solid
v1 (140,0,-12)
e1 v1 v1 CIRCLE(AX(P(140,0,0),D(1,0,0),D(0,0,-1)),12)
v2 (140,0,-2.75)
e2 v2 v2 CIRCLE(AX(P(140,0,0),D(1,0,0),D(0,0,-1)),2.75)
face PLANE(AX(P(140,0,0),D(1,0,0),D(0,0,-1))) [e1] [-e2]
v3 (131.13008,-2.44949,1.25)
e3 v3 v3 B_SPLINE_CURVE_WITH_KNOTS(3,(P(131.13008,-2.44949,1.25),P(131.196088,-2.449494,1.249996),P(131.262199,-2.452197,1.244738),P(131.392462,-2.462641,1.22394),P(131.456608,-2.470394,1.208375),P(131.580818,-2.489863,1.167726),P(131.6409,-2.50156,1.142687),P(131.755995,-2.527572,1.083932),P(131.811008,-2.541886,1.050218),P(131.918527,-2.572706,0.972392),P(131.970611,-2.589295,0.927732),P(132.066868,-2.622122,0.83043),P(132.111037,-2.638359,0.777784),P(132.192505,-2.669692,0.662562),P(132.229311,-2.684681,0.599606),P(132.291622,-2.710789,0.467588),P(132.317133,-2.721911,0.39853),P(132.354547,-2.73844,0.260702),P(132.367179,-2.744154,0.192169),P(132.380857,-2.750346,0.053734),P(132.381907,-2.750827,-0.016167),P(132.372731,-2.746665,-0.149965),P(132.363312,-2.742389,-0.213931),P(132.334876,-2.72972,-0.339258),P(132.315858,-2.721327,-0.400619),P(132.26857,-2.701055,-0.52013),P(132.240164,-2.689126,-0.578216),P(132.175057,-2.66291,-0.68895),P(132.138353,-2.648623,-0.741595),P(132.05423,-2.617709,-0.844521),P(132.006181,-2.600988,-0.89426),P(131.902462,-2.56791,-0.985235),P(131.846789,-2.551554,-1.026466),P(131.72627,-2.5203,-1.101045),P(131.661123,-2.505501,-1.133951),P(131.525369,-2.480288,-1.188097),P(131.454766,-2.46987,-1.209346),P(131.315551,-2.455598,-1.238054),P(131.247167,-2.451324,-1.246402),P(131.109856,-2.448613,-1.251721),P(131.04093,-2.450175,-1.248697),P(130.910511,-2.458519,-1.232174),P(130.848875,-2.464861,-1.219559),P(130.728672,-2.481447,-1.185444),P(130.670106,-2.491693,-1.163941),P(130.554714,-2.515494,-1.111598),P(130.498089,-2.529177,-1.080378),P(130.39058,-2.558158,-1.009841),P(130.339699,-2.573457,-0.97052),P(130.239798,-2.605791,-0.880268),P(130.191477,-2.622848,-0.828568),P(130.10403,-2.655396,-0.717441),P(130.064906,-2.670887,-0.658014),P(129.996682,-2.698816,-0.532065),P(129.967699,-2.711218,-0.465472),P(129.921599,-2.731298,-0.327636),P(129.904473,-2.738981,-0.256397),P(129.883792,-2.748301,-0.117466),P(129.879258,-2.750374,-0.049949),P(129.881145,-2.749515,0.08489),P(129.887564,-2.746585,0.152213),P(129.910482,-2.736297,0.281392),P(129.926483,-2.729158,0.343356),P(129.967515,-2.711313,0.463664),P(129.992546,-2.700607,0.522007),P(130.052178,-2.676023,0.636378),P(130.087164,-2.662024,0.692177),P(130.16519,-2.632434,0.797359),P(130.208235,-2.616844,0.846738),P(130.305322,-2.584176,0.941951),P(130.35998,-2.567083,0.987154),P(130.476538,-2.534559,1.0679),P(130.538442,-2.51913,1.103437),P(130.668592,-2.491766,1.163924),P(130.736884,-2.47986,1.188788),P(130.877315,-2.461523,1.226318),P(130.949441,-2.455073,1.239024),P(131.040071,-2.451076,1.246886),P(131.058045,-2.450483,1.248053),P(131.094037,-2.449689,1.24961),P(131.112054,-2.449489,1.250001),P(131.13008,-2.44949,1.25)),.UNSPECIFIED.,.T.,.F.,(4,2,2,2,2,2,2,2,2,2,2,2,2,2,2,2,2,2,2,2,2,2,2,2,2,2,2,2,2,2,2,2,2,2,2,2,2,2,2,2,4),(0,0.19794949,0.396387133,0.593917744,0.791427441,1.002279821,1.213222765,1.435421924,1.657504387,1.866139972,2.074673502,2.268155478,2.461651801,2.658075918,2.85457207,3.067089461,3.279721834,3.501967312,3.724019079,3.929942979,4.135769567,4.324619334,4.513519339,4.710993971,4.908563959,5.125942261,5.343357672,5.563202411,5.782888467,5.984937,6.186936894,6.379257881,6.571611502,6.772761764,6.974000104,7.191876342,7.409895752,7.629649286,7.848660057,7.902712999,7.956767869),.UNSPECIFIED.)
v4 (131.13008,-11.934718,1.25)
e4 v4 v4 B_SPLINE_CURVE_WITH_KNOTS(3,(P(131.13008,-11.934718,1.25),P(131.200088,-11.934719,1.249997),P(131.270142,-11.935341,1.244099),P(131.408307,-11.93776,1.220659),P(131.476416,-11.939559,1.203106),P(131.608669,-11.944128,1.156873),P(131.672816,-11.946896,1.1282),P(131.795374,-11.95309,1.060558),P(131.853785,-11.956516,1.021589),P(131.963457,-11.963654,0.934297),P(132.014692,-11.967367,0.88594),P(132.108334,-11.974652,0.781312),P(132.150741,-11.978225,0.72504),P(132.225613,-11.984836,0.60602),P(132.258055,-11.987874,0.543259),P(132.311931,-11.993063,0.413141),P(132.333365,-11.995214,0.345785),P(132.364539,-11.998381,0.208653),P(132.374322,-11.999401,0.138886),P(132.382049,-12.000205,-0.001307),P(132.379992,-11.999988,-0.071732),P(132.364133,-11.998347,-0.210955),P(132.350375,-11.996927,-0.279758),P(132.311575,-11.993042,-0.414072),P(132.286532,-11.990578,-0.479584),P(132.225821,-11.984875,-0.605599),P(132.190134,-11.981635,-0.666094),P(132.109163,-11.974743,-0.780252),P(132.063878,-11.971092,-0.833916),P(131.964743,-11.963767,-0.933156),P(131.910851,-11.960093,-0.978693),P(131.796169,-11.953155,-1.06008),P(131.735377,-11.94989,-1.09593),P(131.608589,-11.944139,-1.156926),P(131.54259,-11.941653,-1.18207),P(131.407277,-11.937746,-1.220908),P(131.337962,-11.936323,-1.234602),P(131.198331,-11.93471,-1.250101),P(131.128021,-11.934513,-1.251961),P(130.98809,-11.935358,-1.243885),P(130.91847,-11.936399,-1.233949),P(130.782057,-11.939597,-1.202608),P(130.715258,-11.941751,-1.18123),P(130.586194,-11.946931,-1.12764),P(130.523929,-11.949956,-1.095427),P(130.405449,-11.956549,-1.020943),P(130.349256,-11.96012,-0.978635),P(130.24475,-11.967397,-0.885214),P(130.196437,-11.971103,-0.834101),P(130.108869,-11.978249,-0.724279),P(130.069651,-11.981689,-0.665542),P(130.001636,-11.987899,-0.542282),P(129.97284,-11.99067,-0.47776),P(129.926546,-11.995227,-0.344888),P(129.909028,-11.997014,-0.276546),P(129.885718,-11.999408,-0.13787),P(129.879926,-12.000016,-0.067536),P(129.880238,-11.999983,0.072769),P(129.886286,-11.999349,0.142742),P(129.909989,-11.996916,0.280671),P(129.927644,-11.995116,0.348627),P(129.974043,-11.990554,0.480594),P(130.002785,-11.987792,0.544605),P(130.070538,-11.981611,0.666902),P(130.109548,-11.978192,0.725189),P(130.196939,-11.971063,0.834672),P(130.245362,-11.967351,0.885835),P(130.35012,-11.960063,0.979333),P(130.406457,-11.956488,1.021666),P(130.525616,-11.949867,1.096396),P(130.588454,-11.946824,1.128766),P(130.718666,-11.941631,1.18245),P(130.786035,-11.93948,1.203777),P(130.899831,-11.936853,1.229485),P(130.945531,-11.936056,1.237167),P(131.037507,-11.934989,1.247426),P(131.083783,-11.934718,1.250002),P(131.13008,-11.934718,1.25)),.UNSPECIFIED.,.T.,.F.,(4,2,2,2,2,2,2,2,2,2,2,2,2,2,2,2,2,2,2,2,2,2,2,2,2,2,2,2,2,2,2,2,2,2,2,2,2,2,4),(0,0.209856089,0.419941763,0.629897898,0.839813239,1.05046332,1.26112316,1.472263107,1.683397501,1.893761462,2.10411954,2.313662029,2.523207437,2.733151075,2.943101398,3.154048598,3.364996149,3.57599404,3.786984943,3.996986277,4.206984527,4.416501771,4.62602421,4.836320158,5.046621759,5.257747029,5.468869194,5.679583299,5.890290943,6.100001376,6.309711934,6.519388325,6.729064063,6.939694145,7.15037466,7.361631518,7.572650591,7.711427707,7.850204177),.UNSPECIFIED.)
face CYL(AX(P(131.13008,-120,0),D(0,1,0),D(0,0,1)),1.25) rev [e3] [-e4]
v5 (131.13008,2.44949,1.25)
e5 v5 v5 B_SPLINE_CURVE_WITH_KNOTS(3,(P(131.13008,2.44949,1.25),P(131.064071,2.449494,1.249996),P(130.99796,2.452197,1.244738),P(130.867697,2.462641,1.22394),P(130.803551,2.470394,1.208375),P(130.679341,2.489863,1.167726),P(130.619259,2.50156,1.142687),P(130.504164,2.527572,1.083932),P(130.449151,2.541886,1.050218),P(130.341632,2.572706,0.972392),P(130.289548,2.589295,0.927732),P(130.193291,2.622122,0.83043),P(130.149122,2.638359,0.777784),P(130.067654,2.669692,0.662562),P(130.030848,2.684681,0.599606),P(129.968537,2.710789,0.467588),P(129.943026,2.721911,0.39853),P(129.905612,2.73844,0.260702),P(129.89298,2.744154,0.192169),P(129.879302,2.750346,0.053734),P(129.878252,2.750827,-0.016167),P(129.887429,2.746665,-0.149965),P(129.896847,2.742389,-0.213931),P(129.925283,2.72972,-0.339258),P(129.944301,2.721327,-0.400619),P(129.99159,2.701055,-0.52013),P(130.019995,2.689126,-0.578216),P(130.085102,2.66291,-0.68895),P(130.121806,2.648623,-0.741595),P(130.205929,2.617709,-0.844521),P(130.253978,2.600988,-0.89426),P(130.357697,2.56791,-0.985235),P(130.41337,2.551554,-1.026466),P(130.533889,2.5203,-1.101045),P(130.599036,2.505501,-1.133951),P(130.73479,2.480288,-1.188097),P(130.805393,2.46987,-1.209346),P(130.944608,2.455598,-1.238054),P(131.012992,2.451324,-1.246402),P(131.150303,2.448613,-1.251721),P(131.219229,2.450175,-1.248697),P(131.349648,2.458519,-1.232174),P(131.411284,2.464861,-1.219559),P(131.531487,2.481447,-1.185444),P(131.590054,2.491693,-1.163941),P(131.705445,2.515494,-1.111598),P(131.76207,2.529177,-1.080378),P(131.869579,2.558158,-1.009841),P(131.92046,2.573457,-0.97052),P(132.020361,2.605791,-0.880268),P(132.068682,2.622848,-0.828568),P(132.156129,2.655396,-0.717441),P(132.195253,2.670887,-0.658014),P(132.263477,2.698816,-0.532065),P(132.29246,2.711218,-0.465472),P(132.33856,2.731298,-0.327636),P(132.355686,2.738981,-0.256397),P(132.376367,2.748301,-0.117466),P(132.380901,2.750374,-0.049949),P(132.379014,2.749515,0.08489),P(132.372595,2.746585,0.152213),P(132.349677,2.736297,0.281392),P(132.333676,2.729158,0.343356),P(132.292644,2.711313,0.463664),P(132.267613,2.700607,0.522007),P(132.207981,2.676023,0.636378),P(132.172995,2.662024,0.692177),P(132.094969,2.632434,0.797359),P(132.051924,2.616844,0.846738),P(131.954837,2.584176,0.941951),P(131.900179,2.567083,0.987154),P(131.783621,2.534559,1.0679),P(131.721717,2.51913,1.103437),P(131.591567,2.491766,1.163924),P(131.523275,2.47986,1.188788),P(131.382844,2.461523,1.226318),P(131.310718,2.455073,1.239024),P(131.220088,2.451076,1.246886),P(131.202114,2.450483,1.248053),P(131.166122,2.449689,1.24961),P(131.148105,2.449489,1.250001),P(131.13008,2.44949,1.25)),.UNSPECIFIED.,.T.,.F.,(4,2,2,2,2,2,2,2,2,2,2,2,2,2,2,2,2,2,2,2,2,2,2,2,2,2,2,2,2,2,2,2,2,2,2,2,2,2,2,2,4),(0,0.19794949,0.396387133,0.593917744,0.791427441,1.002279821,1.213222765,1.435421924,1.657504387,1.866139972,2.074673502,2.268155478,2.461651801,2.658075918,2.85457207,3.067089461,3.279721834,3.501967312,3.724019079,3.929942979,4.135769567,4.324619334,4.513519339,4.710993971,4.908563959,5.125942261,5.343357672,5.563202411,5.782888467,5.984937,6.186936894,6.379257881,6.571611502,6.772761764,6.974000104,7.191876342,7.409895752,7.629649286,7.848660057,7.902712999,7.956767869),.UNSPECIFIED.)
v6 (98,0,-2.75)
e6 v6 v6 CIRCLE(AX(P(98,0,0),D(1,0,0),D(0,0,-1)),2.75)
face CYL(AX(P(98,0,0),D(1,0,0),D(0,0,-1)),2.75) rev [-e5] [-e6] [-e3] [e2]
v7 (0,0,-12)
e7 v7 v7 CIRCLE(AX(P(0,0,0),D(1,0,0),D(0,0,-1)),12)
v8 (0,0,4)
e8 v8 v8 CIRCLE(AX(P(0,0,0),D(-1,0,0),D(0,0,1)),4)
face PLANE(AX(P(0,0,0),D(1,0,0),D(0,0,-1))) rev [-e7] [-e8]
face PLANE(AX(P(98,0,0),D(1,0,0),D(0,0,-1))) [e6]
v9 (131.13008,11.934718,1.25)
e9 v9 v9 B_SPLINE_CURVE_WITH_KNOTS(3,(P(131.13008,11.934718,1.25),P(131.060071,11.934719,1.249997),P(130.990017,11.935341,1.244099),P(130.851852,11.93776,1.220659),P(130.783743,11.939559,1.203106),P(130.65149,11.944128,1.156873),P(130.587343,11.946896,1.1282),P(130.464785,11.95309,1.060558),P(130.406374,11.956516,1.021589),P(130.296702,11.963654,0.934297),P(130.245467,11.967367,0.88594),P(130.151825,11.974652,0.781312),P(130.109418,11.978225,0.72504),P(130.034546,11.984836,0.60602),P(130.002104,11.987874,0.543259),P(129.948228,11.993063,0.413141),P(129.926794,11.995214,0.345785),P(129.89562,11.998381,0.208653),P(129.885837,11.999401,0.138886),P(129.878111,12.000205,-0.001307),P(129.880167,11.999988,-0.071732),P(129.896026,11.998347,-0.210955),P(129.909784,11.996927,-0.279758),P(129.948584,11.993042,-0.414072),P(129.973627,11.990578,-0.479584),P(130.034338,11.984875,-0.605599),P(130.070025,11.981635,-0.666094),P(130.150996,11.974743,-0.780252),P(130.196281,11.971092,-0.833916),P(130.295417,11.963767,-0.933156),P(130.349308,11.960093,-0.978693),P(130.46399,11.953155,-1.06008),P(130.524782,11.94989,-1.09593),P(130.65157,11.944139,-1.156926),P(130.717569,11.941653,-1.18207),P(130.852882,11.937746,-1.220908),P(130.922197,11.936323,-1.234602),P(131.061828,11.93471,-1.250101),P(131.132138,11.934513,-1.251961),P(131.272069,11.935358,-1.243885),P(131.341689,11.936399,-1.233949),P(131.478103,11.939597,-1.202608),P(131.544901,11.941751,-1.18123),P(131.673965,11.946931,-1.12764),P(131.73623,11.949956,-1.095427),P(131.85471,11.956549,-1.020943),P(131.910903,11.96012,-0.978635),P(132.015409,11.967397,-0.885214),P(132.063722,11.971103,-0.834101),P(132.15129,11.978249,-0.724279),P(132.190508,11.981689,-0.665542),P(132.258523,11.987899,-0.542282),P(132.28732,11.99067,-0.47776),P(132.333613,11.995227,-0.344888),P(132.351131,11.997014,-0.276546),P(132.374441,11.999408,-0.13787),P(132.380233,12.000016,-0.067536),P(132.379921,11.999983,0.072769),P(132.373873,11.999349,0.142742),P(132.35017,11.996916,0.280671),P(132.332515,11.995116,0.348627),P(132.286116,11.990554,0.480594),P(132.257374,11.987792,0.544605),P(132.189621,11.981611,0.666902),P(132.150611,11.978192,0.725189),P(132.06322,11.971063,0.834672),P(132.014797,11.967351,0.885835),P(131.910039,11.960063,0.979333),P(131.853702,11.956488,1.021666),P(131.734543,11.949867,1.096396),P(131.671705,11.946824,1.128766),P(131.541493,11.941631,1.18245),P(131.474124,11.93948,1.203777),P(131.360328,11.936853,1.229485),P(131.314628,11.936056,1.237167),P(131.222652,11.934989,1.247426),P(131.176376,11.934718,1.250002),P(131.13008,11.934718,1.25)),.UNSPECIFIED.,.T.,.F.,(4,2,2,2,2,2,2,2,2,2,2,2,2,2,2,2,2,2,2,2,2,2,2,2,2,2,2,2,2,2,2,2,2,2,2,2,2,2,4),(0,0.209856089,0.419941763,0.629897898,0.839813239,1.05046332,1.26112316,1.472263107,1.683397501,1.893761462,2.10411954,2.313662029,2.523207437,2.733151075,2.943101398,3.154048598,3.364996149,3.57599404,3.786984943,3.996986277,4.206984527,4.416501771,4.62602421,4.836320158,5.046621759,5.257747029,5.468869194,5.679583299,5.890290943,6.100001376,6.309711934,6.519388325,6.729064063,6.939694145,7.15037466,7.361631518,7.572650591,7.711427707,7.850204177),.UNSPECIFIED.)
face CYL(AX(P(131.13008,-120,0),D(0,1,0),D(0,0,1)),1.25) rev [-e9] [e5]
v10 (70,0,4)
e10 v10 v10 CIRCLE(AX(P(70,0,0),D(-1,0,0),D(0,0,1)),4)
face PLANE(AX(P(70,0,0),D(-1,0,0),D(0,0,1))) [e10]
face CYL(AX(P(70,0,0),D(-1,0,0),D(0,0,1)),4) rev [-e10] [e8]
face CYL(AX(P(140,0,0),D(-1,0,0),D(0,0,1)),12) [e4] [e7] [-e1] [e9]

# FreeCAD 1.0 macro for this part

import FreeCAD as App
import Part
import Sketcher
from FreeCAD import Vector
Q = App.Units.Quantity

doc = App.newDocument("Part")
body = doc.addObject("PartDesign::Body", "Body")

sketch1 = doc.addObject("Sketcher::SketchObject", "Sketch")
body.addObject(sketch1)
sketch1.AttachmentSupport = (doc.YZ_Plane, [""])
sketch1.MapMode = "FlatFace"
sketch1.addGeometry(Part.Circle(Vector(0, 0, 0), Vector(0, 0, 1), 12), False)
sketch1.addConstraint([
    Sketcher.Constraint("Coincident", 0, 3, -1, 1),
    Sketcher.Constraint("Diameter", 0, Q("24 mm")),
])
pad1 = doc.addObject("PartDesign::Pad", "Pad")
body.addObject(pad1)
pad1.Profile = sketch1
pad1.Length = 140

sketch2 = doc.addObject("Sketcher::SketchObject", "Sketch001")
body.addObject(sketch2)
sketch2.AttachmentSupport = (doc.XZ_Plane, [""])
sketch2.MapMode = "FlatFace"
sketch2.addGeometry(Part.Circle(Vector(131.1, 0, 0), Vector(0, 0, 1), 1.2), False)
sketch2.addConstraint([
    Sketcher.Constraint("PointOnObject", 0, 3, -1),
    Sketcher.Constraint("Diameter", 0, Q("2.5 mm")),
    Sketcher.Constraint("DistanceX", -1, 1, 0, 3, Q("131.13008 mm")),
])
pocket1 = doc.addObject("PartDesign::Pocket", "Pocket")
body.addObject(pocket1)
pocket1.Profile = sketch2
pocket1.Type = "ThroughAll"
pocket1.Midplane = True

sketch3 = doc.addObject("Sketcher::SketchObject", "Sketch002")
body.addObject(sketch3)
sketch3.AttachmentSupport = (doc.YZ_Plane, [""])
sketch3.MapMode = "FlatFace"
sketch3.AttachmentOffset = App.Placement(Vector(0, 0, 140), App.Rotation())
sketch3.addGeometry(Part.Circle(Vector(0, 0, 0), Vector(0, 0, 1), 2.8), False)
sketch3.addConstraint([
    Sketcher.Constraint("Coincident", 0, 3, -1, 1),
    Sketcher.Constraint("Diameter", 0, Q("5.5 mm")),
])
pocket2 = doc.addObject("PartDesign::Pocket", "Pocket001")
body.addObject(pocket2)
pocket2.Profile = sketch3
pocket2.Length = 42

sketch4 = doc.addObject("Sketcher::SketchObject", "Sketch003")
body.addObject(sketch4)
sketch4.AttachmentSupport = (doc.YZ_Plane, [""])
sketch4.MapMode = "FlatFace"
sketch4.addGeometry(Part.Circle(Vector(0, 0, 0), Vector(0, 0, 1), 4), False)
sketch4.addConstraint([
    Sketcher.Constraint("Coincident", 0, 3, -1, 1),
    Sketcher.Constraint("Diameter", 0, Q("8 mm")),
])
pocket3 = doc.addObject("PartDesign::Pocket", "Pocket002")
body.addObject(pocket3)
pocket3.Profile = sketch4
pocket3.Length = 70
pocket3.Reversed = True

doc.recompute()
